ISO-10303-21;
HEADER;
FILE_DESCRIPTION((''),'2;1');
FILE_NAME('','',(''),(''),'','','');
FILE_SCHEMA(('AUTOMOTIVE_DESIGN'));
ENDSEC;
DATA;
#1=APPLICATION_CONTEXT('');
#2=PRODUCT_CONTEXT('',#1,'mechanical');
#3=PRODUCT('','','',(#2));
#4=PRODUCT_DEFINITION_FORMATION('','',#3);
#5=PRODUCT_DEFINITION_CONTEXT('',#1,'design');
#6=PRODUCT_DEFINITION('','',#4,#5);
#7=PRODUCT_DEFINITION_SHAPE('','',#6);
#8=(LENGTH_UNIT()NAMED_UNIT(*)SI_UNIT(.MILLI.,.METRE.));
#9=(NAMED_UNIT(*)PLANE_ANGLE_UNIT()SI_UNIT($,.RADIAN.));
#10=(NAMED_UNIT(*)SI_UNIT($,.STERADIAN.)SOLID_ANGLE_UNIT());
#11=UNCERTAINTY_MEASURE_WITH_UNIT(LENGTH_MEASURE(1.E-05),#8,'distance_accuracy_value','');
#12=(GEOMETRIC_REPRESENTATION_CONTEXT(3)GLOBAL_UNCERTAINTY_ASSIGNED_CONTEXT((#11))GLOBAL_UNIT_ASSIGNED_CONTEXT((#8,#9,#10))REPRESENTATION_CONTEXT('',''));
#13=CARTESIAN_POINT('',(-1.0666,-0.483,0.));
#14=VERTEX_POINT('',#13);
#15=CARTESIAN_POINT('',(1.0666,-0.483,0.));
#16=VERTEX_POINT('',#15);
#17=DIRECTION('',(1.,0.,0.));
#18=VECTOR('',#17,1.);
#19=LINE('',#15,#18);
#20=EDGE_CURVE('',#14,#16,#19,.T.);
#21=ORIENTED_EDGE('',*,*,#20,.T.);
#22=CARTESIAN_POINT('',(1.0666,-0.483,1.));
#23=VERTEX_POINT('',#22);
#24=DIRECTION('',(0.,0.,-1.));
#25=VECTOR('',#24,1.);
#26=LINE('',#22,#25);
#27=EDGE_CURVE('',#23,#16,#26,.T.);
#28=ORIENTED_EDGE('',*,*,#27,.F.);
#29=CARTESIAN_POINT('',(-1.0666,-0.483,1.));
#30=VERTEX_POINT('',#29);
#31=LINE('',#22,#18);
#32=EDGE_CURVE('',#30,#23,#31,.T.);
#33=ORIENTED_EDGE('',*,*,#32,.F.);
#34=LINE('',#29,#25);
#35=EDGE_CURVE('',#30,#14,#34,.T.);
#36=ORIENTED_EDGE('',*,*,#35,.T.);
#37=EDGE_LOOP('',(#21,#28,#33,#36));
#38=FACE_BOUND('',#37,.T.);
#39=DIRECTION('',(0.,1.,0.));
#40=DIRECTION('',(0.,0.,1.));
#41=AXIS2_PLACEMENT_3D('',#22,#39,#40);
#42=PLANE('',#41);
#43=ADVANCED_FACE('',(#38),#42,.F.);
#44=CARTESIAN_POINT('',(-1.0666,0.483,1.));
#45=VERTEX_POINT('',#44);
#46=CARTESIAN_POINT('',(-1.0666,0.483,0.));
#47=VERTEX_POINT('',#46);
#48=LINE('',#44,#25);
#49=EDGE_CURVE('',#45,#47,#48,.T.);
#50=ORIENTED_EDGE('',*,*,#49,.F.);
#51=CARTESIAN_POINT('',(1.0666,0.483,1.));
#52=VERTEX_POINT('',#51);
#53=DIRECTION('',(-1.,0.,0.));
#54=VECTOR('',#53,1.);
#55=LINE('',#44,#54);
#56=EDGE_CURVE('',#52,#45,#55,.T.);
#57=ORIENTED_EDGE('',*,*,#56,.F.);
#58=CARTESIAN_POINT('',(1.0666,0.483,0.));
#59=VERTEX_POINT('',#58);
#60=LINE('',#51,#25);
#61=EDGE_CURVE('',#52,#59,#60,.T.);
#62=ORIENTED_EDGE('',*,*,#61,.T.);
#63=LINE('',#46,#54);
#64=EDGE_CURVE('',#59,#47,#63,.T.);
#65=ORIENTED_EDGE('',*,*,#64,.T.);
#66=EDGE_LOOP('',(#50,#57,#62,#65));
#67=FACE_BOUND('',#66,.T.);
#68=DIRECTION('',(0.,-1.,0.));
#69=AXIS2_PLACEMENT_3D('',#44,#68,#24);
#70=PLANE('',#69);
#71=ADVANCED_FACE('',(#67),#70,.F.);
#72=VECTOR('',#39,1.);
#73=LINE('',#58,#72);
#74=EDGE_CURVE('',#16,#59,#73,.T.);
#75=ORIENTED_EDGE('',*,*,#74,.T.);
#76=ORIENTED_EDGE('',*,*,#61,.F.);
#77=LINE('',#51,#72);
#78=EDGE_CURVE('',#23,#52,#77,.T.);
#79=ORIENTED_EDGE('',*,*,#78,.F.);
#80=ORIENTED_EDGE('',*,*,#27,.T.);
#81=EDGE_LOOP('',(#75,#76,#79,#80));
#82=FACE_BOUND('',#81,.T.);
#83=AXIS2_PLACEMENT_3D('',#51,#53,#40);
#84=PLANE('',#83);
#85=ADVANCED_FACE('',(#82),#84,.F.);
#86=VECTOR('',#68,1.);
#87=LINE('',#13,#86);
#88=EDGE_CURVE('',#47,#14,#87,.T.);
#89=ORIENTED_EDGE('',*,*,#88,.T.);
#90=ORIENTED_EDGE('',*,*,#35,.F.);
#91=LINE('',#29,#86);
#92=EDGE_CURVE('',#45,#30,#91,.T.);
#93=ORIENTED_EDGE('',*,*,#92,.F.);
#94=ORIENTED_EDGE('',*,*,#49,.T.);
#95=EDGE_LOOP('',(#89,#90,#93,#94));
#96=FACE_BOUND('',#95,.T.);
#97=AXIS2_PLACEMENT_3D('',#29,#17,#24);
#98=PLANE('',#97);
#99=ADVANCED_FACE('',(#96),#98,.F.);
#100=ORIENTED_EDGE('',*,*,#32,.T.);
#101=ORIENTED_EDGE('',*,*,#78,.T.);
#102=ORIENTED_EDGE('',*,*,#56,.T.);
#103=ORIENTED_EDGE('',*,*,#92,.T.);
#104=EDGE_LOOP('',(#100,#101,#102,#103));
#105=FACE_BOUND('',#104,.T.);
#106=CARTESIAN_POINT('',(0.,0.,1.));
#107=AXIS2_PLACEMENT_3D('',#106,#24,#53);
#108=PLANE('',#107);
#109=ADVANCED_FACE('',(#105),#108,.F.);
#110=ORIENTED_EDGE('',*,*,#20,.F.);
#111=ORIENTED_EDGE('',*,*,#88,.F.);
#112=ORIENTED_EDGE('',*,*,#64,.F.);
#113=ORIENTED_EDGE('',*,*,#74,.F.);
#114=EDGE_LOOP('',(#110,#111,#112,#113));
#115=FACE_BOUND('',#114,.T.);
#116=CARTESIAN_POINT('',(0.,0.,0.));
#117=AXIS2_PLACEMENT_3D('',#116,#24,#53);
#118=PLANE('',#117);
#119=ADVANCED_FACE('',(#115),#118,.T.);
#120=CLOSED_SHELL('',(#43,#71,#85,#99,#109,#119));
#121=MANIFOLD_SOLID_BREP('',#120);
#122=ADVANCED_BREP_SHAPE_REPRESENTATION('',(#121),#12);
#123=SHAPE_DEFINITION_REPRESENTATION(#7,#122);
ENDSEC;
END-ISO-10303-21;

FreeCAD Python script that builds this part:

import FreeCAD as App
import Part
import Sketcher

V = App.Vector
Q = App.Units.Quantity

doc = App.newDocument("Part")
body = doc.addObject("PartDesign::Body", "Body")

# Sketch on XY plane
sketch1 = body.newObject("Sketcher::SketchObject", "Sketch")
sketch1.AttachmentSupport = (doc.getObject("XY_Plane"), [""])
sketch1.MapMode = "FlatFace"
sketch1.addGeometry([
    Part.LineSegment(V(-1.0666, 0.483, 0), V(-1.0666, -0.483, 0)),
    Part.LineSegment(V(-1.0666, -0.483, 0), V(1.0666, -0.483, 0)),
    Part.LineSegment(V(1.0666, -0.483, 0), V(1.0666, 0.483, 0)),
    Part.LineSegment(V(1.0666, 0.483, 0), V(-1.0666, 0.483, 0)),
], False)
sketch1.addConstraint([
    Sketcher.Constraint("Coincident", 0, 2, 1, 1),
    Sketcher.Constraint("Coincident", 1, 2, 2, 1),
    Sketcher.Constraint("Coincident", 2, 2, 3, 1),
    Sketcher.Constraint("Coincident", 3, 2, 0, 1),
    Sketcher.Constraint("Vertical", 0),
    Sketcher.Constraint("Horizontal", 1),
    Sketcher.Constraint("Vertical", 2),
    Sketcher.Constraint("Horizontal", 3),
    Sketcher.Constraint("Symmetric", 0, 2, 2, 2, -1, 1),
    Sketcher.Constraint("DistanceY", 0, 2, 0, 1, Q("0.966 mm")),
    Sketcher.Constraint("DistanceX", 1, 1, 1, 2, Q("2.1332 mm")),
])
pad1 = body.newObject("PartDesign::Pad", "Pad")
pad1.Profile = sketch1
pad1.Length = 1

doc.recompute()
